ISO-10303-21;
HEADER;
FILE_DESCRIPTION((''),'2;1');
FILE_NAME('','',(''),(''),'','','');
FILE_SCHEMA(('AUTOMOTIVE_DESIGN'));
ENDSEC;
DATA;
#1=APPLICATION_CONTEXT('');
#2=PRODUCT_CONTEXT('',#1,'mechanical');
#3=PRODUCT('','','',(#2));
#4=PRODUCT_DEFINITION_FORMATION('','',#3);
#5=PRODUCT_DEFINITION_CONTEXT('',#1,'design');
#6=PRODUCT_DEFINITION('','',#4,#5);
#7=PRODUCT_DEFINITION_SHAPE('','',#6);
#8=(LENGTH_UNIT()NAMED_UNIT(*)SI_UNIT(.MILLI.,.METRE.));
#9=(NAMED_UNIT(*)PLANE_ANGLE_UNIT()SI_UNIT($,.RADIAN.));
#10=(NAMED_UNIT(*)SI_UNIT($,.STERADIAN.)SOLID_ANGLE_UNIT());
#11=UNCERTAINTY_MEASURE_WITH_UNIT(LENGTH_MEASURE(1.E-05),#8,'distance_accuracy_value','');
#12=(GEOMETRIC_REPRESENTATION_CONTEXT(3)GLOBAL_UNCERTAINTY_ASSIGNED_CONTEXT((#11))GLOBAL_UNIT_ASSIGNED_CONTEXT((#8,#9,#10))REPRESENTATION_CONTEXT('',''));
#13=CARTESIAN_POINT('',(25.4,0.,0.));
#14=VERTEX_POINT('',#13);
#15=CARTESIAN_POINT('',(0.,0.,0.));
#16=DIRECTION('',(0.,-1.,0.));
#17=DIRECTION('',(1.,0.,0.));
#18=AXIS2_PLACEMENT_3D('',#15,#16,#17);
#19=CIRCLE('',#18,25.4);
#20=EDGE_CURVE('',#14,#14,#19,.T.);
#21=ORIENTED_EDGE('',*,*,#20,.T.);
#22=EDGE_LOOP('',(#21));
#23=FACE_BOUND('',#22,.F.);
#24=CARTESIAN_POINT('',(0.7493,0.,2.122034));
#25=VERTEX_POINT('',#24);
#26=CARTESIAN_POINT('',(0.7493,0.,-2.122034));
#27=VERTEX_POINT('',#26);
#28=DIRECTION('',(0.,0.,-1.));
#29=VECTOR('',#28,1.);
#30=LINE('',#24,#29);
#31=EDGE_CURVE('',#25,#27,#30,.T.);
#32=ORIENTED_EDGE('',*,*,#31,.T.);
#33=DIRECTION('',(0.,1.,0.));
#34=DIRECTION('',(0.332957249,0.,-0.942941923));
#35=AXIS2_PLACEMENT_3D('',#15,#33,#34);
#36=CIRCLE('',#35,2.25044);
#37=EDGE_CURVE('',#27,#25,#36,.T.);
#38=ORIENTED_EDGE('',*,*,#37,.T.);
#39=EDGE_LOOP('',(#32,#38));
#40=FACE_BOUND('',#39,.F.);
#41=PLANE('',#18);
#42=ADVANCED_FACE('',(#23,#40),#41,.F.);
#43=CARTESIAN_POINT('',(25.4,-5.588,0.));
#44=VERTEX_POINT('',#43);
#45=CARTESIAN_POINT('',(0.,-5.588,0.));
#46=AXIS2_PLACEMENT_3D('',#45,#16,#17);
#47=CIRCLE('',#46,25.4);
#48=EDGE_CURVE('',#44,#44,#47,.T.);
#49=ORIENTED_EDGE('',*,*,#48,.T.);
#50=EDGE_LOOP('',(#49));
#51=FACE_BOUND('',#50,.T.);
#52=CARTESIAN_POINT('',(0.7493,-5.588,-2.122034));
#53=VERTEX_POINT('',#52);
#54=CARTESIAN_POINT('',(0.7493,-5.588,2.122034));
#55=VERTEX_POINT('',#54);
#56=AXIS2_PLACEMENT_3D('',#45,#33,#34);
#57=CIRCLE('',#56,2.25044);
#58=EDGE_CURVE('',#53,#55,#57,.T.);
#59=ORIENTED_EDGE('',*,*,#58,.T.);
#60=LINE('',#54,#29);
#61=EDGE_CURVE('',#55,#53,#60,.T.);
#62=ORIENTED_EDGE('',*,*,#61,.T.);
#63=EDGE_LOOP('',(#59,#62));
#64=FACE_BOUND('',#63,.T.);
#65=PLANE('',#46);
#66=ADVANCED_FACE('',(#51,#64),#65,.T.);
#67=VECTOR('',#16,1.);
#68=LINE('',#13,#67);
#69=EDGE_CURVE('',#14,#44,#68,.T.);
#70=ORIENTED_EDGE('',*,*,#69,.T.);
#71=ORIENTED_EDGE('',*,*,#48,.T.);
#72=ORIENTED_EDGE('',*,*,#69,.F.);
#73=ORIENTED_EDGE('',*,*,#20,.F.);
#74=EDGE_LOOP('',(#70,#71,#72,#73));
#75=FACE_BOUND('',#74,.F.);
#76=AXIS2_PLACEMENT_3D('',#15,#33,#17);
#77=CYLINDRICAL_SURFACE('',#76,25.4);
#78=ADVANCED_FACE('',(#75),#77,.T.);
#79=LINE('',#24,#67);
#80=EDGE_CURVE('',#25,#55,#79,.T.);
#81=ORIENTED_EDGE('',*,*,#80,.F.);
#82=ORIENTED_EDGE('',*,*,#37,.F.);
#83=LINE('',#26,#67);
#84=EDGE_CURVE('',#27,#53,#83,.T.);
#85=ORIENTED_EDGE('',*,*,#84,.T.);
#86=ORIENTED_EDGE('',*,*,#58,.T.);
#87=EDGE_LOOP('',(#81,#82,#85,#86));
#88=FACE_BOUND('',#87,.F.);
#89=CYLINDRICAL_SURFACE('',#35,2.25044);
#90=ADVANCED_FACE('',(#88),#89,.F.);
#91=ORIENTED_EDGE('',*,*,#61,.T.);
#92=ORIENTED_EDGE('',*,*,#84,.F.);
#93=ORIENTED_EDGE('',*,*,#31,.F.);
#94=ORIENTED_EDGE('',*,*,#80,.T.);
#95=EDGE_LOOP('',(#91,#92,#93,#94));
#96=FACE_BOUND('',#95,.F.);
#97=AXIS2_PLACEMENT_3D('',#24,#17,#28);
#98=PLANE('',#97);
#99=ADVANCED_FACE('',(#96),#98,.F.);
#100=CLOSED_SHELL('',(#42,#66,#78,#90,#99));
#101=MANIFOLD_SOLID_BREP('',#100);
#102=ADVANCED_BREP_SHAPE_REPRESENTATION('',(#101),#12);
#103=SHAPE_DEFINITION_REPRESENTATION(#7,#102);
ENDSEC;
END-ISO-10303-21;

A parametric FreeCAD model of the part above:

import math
import FreeCAD as App
import Part
import Sketcher
from FreeCAD import Vector
Q = App.Units.Quantity

doc = App.newDocument("Part")
body = doc.addObject("PartDesign::Body", "Body")

# Sketch on XZ plane
sketch1 = body.newObject("Sketcher::SketchObject", "Sketch")
sketch1.AttachmentSupport = (doc.getObject("XZ_Plane"), [""])
sketch1.MapMode = "FlatFace"
sketch1.addGeometry([
    Part.Circle(Vector(0, 0, 0), Vector(0, 0, 1), 25.4),
    Part.ArcOfCircle(Part.Circle(Vector(0, 0, 0), Vector(0, 0, 1), 2.25044), math.radians(70.551633), math.radians(289.448367)),
    Part.LineSegment(Vector(0.7493, 2.122034, 0), Vector(0.7493, -2.122034, 0)),
], False)
sketch1.addConstraint([
    Sketcher.Constraint("Coincident", 1, 1, 2, 1),
    Sketcher.Constraint("Coincident", 2, 2, 1, 2),
    Sketcher.Constraint("Vertical", 2),
    Sketcher.Constraint("Coincident", 0, 3, -1, 1),
    Sketcher.Constraint("Coincident", 1, 3, -1, 1),
    Sketcher.Constraint("Diameter", 0, Q("2 in")),
    Sketcher.Constraint("Radius", 1, Q("0.0886 in")),
    Sketcher.Constraint("DistanceX", -1, 1, 1, 1, Q("0.0295 in")),
])
pad1 = body.newObject("PartDesign::Pad", "Pad")
pad1.Profile = sketch1
pad1.Length = Q("0.22 in")

doc.recompute()
